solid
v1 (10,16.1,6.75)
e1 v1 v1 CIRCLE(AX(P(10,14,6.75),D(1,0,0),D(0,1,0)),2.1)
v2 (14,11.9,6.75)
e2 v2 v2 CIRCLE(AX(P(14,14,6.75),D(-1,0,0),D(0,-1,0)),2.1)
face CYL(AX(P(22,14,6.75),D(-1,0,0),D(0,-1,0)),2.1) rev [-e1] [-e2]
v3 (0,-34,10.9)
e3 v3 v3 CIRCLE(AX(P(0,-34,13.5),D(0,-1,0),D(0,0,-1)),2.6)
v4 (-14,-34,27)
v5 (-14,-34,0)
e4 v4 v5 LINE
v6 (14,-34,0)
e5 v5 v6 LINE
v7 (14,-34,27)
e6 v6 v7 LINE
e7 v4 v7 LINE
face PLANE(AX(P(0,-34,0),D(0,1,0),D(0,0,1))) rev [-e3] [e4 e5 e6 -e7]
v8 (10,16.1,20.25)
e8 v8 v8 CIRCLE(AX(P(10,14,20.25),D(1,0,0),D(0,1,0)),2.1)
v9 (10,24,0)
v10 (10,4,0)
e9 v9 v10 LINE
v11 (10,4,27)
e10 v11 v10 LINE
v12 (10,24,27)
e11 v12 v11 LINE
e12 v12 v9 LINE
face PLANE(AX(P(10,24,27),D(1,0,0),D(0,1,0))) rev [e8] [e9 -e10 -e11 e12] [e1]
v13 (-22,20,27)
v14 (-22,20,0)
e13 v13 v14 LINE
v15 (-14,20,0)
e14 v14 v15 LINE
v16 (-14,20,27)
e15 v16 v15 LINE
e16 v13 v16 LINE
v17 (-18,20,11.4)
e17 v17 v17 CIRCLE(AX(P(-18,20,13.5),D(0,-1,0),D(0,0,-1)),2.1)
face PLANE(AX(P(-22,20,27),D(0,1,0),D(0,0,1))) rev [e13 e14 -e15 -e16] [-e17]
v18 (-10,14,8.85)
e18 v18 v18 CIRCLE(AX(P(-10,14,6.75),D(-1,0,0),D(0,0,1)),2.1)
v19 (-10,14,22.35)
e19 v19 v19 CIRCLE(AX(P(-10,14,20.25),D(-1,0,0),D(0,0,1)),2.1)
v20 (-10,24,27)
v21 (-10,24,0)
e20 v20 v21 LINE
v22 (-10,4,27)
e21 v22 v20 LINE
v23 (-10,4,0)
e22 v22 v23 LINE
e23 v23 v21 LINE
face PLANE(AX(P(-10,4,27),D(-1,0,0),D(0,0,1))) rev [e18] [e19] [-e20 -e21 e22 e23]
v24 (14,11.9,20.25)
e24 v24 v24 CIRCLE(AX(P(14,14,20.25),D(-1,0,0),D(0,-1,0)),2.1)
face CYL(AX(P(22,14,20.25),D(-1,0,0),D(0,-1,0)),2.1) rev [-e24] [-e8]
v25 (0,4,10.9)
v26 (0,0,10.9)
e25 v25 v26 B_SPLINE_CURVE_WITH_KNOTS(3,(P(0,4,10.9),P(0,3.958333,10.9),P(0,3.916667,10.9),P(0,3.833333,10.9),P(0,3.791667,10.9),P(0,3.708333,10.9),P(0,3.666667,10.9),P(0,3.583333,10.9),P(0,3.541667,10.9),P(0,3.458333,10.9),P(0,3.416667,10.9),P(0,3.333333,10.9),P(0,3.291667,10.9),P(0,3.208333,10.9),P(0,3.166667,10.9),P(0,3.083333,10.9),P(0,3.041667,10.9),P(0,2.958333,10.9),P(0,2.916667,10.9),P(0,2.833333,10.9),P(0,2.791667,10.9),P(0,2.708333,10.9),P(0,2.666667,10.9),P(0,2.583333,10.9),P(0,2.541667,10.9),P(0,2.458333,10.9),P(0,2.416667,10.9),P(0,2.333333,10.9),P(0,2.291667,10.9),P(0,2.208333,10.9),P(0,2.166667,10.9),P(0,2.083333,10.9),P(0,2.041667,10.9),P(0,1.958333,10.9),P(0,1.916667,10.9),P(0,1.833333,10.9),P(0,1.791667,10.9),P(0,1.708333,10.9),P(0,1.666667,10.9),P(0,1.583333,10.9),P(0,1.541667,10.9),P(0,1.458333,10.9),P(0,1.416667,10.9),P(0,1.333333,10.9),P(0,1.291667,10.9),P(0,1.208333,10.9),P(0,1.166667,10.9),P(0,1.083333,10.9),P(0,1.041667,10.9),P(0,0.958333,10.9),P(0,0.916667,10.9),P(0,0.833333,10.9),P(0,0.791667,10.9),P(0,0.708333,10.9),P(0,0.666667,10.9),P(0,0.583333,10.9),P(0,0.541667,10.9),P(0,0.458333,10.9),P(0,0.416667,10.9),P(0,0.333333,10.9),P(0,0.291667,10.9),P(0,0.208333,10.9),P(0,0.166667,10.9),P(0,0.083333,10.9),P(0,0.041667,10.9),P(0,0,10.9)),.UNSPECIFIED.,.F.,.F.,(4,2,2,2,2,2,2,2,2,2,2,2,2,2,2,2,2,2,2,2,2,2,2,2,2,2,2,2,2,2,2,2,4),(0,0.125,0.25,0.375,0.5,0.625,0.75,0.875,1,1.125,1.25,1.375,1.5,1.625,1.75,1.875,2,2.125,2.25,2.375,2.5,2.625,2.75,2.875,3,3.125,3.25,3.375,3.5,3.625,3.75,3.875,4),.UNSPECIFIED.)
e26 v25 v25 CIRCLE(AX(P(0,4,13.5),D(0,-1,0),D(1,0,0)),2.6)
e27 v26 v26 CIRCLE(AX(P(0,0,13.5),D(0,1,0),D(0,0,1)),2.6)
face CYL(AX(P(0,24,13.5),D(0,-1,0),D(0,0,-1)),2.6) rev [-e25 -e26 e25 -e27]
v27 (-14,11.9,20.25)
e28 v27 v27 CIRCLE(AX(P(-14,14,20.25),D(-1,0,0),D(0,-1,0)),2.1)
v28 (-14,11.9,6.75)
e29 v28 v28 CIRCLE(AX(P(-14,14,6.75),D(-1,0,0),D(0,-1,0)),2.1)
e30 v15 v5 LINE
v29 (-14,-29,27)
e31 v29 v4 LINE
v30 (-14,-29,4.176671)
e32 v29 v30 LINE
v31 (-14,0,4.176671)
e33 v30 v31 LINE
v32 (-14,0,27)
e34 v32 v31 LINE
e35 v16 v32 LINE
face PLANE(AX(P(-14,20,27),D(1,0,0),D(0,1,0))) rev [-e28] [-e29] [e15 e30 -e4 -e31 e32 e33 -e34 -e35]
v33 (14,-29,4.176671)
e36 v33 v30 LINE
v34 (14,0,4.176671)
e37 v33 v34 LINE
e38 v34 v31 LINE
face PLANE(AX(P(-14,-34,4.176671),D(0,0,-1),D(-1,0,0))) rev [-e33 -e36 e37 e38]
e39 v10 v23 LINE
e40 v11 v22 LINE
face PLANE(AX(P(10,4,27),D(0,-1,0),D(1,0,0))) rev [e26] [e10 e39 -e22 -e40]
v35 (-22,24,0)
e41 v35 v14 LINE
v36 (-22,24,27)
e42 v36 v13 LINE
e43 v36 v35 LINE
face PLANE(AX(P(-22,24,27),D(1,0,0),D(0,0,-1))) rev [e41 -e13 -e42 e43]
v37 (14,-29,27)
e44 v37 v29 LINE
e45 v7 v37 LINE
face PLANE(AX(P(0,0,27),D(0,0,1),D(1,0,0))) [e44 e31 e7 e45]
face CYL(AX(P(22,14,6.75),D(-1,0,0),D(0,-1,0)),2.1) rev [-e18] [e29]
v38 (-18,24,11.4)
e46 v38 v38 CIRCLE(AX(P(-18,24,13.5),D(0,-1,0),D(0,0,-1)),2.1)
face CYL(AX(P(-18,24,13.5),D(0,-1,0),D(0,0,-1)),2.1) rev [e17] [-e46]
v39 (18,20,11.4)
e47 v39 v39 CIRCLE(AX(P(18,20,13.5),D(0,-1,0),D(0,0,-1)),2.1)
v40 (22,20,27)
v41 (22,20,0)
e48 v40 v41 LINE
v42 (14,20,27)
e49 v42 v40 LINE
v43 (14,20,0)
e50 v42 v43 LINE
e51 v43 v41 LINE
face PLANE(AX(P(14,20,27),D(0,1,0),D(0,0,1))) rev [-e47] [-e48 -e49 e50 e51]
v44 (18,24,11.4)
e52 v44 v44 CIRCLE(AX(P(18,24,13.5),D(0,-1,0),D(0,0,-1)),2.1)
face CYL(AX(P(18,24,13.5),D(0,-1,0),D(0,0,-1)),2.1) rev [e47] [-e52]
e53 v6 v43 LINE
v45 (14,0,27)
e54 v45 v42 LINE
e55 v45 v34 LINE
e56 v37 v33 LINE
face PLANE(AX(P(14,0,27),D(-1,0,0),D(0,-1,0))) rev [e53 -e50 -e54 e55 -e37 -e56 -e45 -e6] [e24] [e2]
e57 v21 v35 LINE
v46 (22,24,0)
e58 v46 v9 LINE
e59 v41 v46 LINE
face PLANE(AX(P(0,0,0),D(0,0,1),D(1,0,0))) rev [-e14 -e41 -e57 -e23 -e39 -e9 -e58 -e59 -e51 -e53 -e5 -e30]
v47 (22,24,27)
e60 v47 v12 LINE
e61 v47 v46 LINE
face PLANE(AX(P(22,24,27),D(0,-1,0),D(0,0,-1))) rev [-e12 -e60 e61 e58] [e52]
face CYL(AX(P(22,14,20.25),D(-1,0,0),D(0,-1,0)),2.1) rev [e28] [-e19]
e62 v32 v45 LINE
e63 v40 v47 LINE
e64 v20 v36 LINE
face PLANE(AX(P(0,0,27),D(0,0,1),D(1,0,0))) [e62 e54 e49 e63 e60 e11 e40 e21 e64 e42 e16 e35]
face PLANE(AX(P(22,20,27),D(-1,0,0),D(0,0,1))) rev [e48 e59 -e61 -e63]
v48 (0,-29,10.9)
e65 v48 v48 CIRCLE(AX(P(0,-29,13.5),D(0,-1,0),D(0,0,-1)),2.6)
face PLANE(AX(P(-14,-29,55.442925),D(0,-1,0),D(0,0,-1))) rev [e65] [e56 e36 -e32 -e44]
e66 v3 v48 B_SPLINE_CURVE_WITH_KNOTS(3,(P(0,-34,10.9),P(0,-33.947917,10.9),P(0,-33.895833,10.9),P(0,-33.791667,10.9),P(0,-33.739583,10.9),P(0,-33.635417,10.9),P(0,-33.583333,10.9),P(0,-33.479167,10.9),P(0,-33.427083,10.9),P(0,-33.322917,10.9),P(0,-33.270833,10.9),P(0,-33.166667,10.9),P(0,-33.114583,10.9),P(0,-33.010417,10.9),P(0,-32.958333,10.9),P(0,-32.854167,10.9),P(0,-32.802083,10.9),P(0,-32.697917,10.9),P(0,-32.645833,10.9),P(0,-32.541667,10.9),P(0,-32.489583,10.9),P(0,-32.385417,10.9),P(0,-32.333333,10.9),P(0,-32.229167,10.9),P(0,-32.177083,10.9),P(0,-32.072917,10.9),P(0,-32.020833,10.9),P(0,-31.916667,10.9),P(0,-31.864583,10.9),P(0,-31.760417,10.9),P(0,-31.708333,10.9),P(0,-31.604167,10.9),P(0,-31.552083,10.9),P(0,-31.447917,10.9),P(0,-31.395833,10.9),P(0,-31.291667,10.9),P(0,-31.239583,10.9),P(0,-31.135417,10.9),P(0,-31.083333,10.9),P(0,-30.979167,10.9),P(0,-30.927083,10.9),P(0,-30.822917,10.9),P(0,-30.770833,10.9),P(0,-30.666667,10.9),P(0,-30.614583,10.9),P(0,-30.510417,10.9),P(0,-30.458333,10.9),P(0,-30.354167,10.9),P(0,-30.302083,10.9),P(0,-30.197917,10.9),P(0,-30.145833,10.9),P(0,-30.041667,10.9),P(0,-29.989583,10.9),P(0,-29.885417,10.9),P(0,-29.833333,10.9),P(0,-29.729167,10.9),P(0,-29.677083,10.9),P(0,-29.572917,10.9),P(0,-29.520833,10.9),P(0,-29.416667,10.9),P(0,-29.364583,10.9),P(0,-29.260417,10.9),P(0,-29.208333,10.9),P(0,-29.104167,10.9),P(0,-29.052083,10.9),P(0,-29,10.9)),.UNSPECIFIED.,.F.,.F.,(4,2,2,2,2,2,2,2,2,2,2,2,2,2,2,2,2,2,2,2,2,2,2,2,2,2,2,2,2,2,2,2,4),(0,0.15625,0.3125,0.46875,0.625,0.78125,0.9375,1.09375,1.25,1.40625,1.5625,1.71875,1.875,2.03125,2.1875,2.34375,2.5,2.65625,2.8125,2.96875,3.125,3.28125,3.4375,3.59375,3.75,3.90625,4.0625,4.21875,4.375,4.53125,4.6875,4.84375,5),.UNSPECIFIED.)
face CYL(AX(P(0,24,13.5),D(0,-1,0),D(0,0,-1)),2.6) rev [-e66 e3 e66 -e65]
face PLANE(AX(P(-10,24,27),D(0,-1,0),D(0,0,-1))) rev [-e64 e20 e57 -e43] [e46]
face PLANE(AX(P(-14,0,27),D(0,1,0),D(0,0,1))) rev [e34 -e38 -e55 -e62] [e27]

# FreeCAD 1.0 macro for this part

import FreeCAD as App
import Part
import Sketcher
Q = App.Units.Quantity

doc = App.newDocument("Part")
body = doc.addObject("PartDesign::Body", "Body")

sketch1 = doc.addObject("Sketcher::SketchObject", "Sketch")
body.addObject(sketch1)
sketch1.AttachmentSupport = (doc.XY_Plane, [""])
sketch1.MapMode = "FlatFace"
sketch1.addGeometry(Part.LineSegment(App.Vector(-14, 0, 0), App.Vector(14, 0, 0)), False)
sketch1.addGeometry(Part.LineSegment(App.Vector(14, 0, 0), App.Vector(14, 20, 0)), False)
sketch1.addGeometry(Part.LineSegment(App.Vector(14, 20, 0), App.Vector(22, 20, 0)), False)
sketch1.addGeometry(Part.LineSegment(App.Vector(22, 20, 0), App.Vector(22, 24, 0)), False)
sketch1.addGeometry(Part.LineSegment(App.Vector(22, 24, 0), App.Vector(10, 24, 0)), False)
sketch1.addGeometry(Part.LineSegment(App.Vector(10, 24, 0), App.Vector(10, 4, 0)), False)
sketch1.addGeometry(Part.LineSegment(App.Vector(10, 4, 0), App.Vector(-10, 4, 0)), False)
sketch1.addGeometry(Part.LineSegment(App.Vector(-10, 4, 0), App.Vector(-10, 24, 0)), False)
sketch1.addGeometry(Part.LineSegment(App.Vector(-10, 24, 0), App.Vector(-22, 24, 0)), False)
sketch1.addGeometry(Part.LineSegment(App.Vector(-22, 24, 0), App.Vector(-22, 20, 0)), False)
sketch1.addGeometry(Part.LineSegment(App.Vector(-22, 20, 0), App.Vector(-14, 20, 0)), False)
sketch1.addGeometry(Part.LineSegment(App.Vector(-14, 20, 0), App.Vector(-14, 0, 0)), False)
sketch1.addConstraint(Sketcher.Constraint("Coincident", 0, 2, 1, 1))
sketch1.addConstraint(Sketcher.Constraint("Coincident", 1, 2, 2, 1))
sketch1.addConstraint(Sketcher.Constraint("Coincident", 2, 2, 3, 1))
sketch1.addConstraint(Sketcher.Constraint("Coincident", 3, 2, 4, 1))
sketch1.addConstraint(Sketcher.Constraint("Coincident", 4, 2, 5, 1))
sketch1.addConstraint(Sketcher.Constraint("Coincident", 5, 2, 6, 1))
sketch1.addConstraint(Sketcher.Constraint("Coincident", 6, 2, 7, 1))
sketch1.addConstraint(Sketcher.Constraint("Coincident", 7, 2, 8, 1))
sketch1.addConstraint(Sketcher.Constraint("Coincident", 8, 2, 9, 1))
sketch1.addConstraint(Sketcher.Constraint("Coincident", 9, 2, 10, 1))
sketch1.addConstraint(Sketcher.Constraint("Coincident", 10, 2, 11, 1))
sketch1.addConstraint(Sketcher.Constraint("Coincident", 11, 2, 0, 1))
sketch1.addConstraint(Sketcher.Constraint("Horizontal", 0))
sketch1.addConstraint(Sketcher.Constraint("Vertical", 1))
sketch1.addConstraint(Sketcher.Constraint("Horizontal", 2))
sketch1.addConstraint(Sketcher.Constraint("Vertical", 3))
sketch1.addConstraint(Sketcher.Constraint("Horizontal", 4))
sketch1.addConstraint(Sketcher.Constraint("Vertical", 5))
sketch1.addConstraint(Sketcher.Constraint("Horizontal", 6))
sketch1.addConstraint(Sketcher.Constraint("Vertical", 7))
sketch1.addConstraint(Sketcher.Constraint("Horizontal", 8))
sketch1.addConstraint(Sketcher.Constraint("Vertical", 9))
sketch1.addConstraint(Sketcher.Constraint("Horizontal", 10))
sketch1.addConstraint(Sketcher.Constraint("Vertical", 11))
sketch1.addConstraint(Sketcher.Constraint("Symmetric", 0, 2, 11, 2, -1, 1))
sketch1.addConstraint(Sketcher.Constraint("Symmetric", 4, 2, 7, 2, -2))
sketch1.addConstraint(Sketcher.Constraint("Symmetric", 2, 2, 9, 2, -2))
sketch1.addConstraint(Sketcher.Constraint("Equal", 6, 1))
sketch1.addConstraint(Sketcher.Constraint("Equal", 1, 5))
sketch1.addConstraint(Sketcher.Constraint("DistanceX", 0, 1, 0, 2, Q("28 mm")))
sketch1.addConstraint(Sketcher.Constraint("DistanceX", 2, 1, 2, 2, Q("8 mm")))
sketch1.addConstraint(Sketcher.Constraint("DistanceX", 4, 2, 4, 1, Q("12 mm")))
sketch1.addConstraint(Sketcher.Constraint("DistanceY", 3, 1, 3, 2, Q("4 mm")))
pad1 = doc.addObject("PartDesign::Pad", "Pad")
body.addObject(pad1)
pad1.Profile = sketch1
pad1.Length = 27

sketch2 = doc.addObject("Sketcher::SketchObject", "Sketch001")
body.addObject(sketch2)
sketch2.AttachmentSupport = (doc.YZ_Plane, [""])
sketch2.MapMode = "FlatFace"
sketch2.AttachmentOffset = App.Placement(App.Vector(0, 0, -14), App.Rotation())
sketch2.addGeometry(Part.Circle(App.Vector(14, 6.75, 0), App.Vector(0, 0, 1), 2.1), False)
sketch2.addGeometry(Part.Circle(App.Vector(14, 20.25, 0), App.Vector(0, 0, 1), 2.1), False)
sketch2.addConstraint(Sketcher.Constraint("Equal", 0, 1))
sketch2.addConstraint(Sketcher.Constraint("Vertical", 0, 3, 1, 3))
sketch2.addConstraint(Sketcher.Constraint("Diameter", 0, Q("4.2 mm")))
sketch2.addConstraint(Sketcher.Constraint("DistanceX", -1, 1, 0, 3, Q("14 mm")))
sketch2.addConstraint(Sketcher.Constraint("DistanceY", 0, 3, 1, 3, Q("13.5 mm")))
sketch2.addConstraint(Sketcher.Constraint("DistanceY", -1, 1, 0, 3, Q("6.75 mm")))
pocket1 = doc.addObject("PartDesign::Pocket", "Pocket")
body.addObject(pocket1)
pocket1.Profile = sketch2
pocket1.Type = "ThroughAll"
pocket1.Reversed = True

sketch3 = doc.addObject("Sketcher::SketchObject", "Sketch002")
body.addObject(sketch3)
sketch3.AttachmentSupport = (doc.XZ_Plane, [""])
sketch3.MapMode = "FlatFace"
sketch3.AttachmentOffset = App.Placement(App.Vector(0, 0, -20), App.Rotation())
sketch3.addGeometry(Part.Circle(App.Vector(-18, 13.5, 0), App.Vector(0, 0, 1), 2.1), False)
sketch3.addGeometry(Part.Circle(App.Vector(18, 13.5, 0), App.Vector(0, 0, 1), 2.1), False)
sketch3.addConstraint(Sketcher.Constraint("Equal", 0, 1))
sketch3.addConstraint(Sketcher.Constraint("Symmetric", 0, 3, 1, 3, -2))
sketch3.addConstraint(Sketcher.Constraint("Diameter", 0, Q("4.2 mm")))
sketch3.addConstraint(Sketcher.Constraint("DistanceX", 0, 3, -1, 1, Q("18 mm")))
sketch3.addConstraint(Sketcher.Constraint("DistanceY", -1, 1, 0, 3, Q("13.5 mm")))
pocket2 = doc.addObject("PartDesign::Pocket", "Pocket001")
body.addObject(pocket2)
pocket2.Profile = sketch3
pocket2.Type = "ThroughAll"

sketch4 = doc.addObject("Sketcher::SketchObject", "Sketch003")
body.addObject(sketch4)
sketch4.AttachmentSupport = (doc.XZ_Plane, [""])
sketch4.MapMode = "FlatFace"
sketch4.addGeometry(Part.LineSegment(App.Vector(-14, 4.176671, 0), App.Vector(-14, 0, 0)), False)
sketch4.addGeometry(Part.LineSegment(App.Vector(-14, 0, 0), App.Vector(14, 0, 0)), False)
sketch4.addGeometry(Part.LineSegment(App.Vector(14, 0, 0), App.Vector(14, 4.176671, 0)), False)
sketch4.addGeometry(Part.LineSegment(App.Vector(14, 4.176671, 0), App.Vector(-14, 4.176671, 0)), False)
sketch4.addConstraint(Sketcher.Constraint("Coincident", 0, 2, 1, 1))
sketch4.addConstraint(Sketcher.Constraint("Coincident", 1, 2, 2, 1))
sketch4.addConstraint(Sketcher.Constraint("Coincident", 2, 2, 3, 1))
sketch4.addConstraint(Sketcher.Constraint("Coincident", 3, 2, 0, 1))
sketch4.addConstraint(Sketcher.Constraint("Vertical", 0))
sketch4.addConstraint(Sketcher.Constraint("Horizontal", 1))
sketch4.addConstraint(Sketcher.Constraint("Vertical", 2))
sketch4.addConstraint(Sketcher.Constraint("Horizontal", 3))
sketch4.addConstraint(Sketcher.Constraint("Symmetric", 0, 2, 1, 2, -1, 1))
sketch4.addConstraint(Sketcher.Constraint("DistanceX", 1, 1, 1, 2, Q("28 mm")))
sketch4.addConstraint(Sketcher.Constraint("DistanceY", 0, 2, 0, 1, Q("4.176671 mm")))
pad2 = doc.addObject("PartDesign::Pad", "Pad001")
body.addObject(pad2)
pad2.Profile = sketch4
pad2.Length = 34

sketch5 = doc.addObject("Sketcher::SketchObject", "Sketch004")
body.addObject(sketch5)
sketch5.AttachmentSupport = (doc.XY_Plane, [""])
sketch5.MapMode = "FlatFace"
sketch5.AttachmentOffset = App.Placement(App.Vector(0, 0, 4.176671), App.Rotation())
sketch5.addGeometry(Part.LineSegment(App.Vector(-14, -29, 0), App.Vector(-14, -34, 0)), False)
sketch5.addGeometry(Part.LineSegment(App.Vector(-14, -34, 0), App.Vector(14, -34, 0)), False)
sketch5.addGeometry(Part.LineSegment(App.Vector(14, -34, 0), App.Vector(14, -29, 0)), False)
sketch5.addGeometry(Part.LineSegment(App.Vector(14, -29, 0), App.Vector(-14, -29, 0)), False)
sketch5.addConstraint(Sketcher.Constraint("Coincident", 0, 2, 1, 1))
sketch5.addConstraint(Sketcher.Constraint("Coincident", 1, 2, 2, 1))
sketch5.addConstraint(Sketcher.Constraint("Coincident", 2, 2, 3, 1))
sketch5.addConstraint(Sketcher.Constraint("Coincident", 3, 2, 0, 1))
sketch5.addConstraint(Sketcher.Constraint("Vertical", 0))
sketch5.addConstraint(Sketcher.Constraint("Horizontal", 1))
sketch5.addConstraint(Sketcher.Constraint("Vertical", 2))
sketch5.addConstraint(Sketcher.Constraint("Horizontal", 3))
sketch5.addConstraint(Sketcher.Constraint("DistanceX", 1, 1, 1, 2, Q("28 mm")))
sketch5.addConstraint(Sketcher.Constraint("DistanceY", 0, 2, 0, 1, Q("5 mm")))
sketch5.addConstraint(Sketcher.Constraint("DistanceX", 0, 2, -1, 1, Q("14 mm")))
sketch5.addConstraint(Sketcher.Constraint("DistanceY", 0, 2, -1, 1, Q("34 mm")))
pad3 = doc.addObject("PartDesign::Pad", "Pad002")
body.addObject(pad3)
pad3.Profile = sketch5
pad3.Length = 22.823329

sketch6 = doc.addObject("Sketcher::SketchObject", "Sketch005")
body.addObject(sketch6)
sketch6.AttachmentSupport = (doc.XZ_Plane, [""])
sketch6.MapMode = "FlatFace"
sketch6.AttachmentOffset = App.Placement(App.Vector(0, 0, 34), App.Rotation())
sketch6.addGeometry(Part.Circle(App.Vector(0, 13.5, 0), App.Vector(0, 0, 1), 2.6), False)
sketch6.addConstraint(Sketcher.Constraint("PointOnObject", 0, 3, -2))
sketch6.addConstraint(Sketcher.Constraint("Diameter", 0, Q("5.2 mm")))
sketch6.addConstraint(Sketcher.Constraint("DistanceY", -1, 1, 0, 3, Q("13.5 mm")))
pocket3 = doc.addObject("PartDesign::Pocket", "Pocket002")
body.addObject(pocket3)
pocket3.Profile = sketch6
pocket3.Type = "ThroughAll"

doc.recompute()
